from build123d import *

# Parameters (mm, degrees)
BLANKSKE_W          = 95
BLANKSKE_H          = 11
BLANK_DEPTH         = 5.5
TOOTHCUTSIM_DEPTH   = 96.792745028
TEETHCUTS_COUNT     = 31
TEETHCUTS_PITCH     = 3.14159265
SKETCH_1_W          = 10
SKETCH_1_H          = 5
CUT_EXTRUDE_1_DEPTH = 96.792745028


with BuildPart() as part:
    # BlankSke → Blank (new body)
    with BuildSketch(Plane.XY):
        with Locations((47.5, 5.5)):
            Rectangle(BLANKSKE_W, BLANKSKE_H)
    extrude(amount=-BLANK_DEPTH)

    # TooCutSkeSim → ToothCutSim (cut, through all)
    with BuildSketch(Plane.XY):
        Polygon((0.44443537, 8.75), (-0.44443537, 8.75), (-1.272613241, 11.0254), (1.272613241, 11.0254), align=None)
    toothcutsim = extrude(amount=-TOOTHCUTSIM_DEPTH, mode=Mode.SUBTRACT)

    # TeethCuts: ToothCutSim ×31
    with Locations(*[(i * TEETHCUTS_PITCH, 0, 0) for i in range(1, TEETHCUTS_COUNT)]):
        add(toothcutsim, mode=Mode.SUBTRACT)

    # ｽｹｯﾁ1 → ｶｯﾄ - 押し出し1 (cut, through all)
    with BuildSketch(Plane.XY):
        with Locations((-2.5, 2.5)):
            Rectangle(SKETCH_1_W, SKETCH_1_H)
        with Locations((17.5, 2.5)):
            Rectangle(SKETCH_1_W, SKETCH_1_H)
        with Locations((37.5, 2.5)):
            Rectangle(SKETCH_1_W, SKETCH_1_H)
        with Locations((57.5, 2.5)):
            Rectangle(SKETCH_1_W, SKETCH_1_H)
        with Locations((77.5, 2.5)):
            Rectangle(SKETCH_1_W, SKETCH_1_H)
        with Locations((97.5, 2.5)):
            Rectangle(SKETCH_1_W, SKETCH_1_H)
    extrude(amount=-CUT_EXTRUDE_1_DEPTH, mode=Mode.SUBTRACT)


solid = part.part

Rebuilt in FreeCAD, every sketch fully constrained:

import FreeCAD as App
import Part
import Sketcher
Q = App.Units.Quantity


def add_polygon(sketch, points):
    """Adds a closed chain of lines whose ends are joined by coincident constraints."""
    first, n = sketch.GeometryCount, len(points)
    for a, b in zip(points, points[1:] + points[:1]):
        sketch.addGeometry(Part.LineSegment(App.Vector(*a, 0), App.Vector(*b, 0)), False)
    for i in range(n):
        sketch.addConstraint(Sketcher.Constraint("Coincident", first + i, 2, first + (i + 1) % n, 1))

doc = App.newDocument("Part")
body = doc.addObject("PartDesign::Body", "Body")

sketch1 = body.newObject("Sketcher::SketchObject", "Sketch")
sketch1.AttachmentSupport = (doc.getObject("XY_Plane"), [""])
sketch1.MapMode = "FlatFace"
add_polygon(sketch1, [(0, 11), (0, 0), (95, 0), (95, 11)])
sketch1.addConstraint([
    Sketcher.Constraint("Vertical", 0),
    Sketcher.Constraint("Horizontal", 1),
    Sketcher.Constraint("Vertical", 2),
    Sketcher.Constraint("Horizontal", 3),
    Sketcher.Constraint("Coincident", 0, 2, -1, 1),
    Sketcher.Constraint("DistanceX", 1, 1, 1, 2, 95.0),
    Sketcher.Constraint("DistanceY", 0, 2, 0, 1, 11.0),
])
pad1 = body.newObject("PartDesign::Pad", "Pad")
pad1.Profile = sketch1
pad1.Length = 5.5
pad1.Reversed = True

sketch2 = body.newObject("Sketcher::SketchObject", "Sketch001")
sketch2.AttachmentSupport = (doc.getObject("XY_Plane"), [""])
sketch2.MapMode = "FlatFace"
add_polygon(sketch2, [(-0.4, 8.8), (0.4, 8.8), (1.3, 11), (-1.3, 11)])
sketch2.addConstraint([
    Sketcher.Constraint("Horizontal", 0),
    Sketcher.Constraint("Horizontal", 2),
    Sketcher.Constraint("Equal", 1, 3),
    Sketcher.Constraint("Angle", 1, Q("70 deg")),
    Sketcher.Constraint("DistanceY", -1, 1, 0, 2, 8.75),
    Sketcher.Constraint("DistanceX", 0, 1, 0, 2, 0.888871),
    Sketcher.Constraint("DistanceY", -1, 1, 1, 2, 11.0254),
    Sketcher.Constraint("DistanceX", -1, 1, 0, 2, 0.444435),
])
pocket1 = body.newObject("PartDesign::Pocket", "Pocket")
pocket1.Profile = sketch2
pocket1.Type = "ThroughAll"
doc.recompute()

linearpattern = body.newObject("PartDesign::LinearPattern", "LinearPattern")
linearpattern.Originals = [pocket1]
linearpattern.Direction = (doc.getObject("X_Axis"), [""])
linearpattern.Mode = "offset"
linearpattern.Offset = 3.141593
linearpattern.Occurrences = 31
body.Tip = linearpattern

sketch3 = body.newObject("Sketcher::SketchObject", "Sketch002")
sketch3.AttachmentSupport = (doc.getObject("XY_Plane"), [""])
sketch3.MapMode = "FlatFace"
add_polygon(sketch3, [(-8, 5), (-8, 0), (2, 0), (2, 5)])
add_polygon(sketch3, [(12, 5), (12, 0), (22, 0), (22, 5)])
add_polygon(sketch3, [(32, 5), (32, 0), (42, 0), (42, 5)])
add_polygon(sketch3, [(52, 5), (52, 0), (62, 0), (62, 5)])
add_polygon(sketch3, [(72, 5), (72, 0), (82, 0), (82, 5)])
add_polygon(sketch3, [(92, 5), (92, 0), (102, 0), (102, 5)])
sketch3.addConstraint([
    Sketcher.Constraint("Vertical", 0),
    Sketcher.Constraint("Horizontal", 1),
    Sketcher.Constraint("Vertical", 2),
    Sketcher.Constraint("Horizontal", 3),
    Sketcher.Constraint("Vertical", 4),
    Sketcher.Constraint("Horizontal", 5),
    Sketcher.Constraint("Vertical", 6),
    Sketcher.Constraint("Horizontal", 7),
    Sketcher.Constraint("Vertical", 8),
    Sketcher.Constraint("Horizontal", 9),
    Sketcher.Constraint("Vertical", 10),
    Sketcher.Constraint("Horizontal", 11),
    Sketcher.Constraint("Vertical", 12),
    Sketcher.Constraint("Horizontal", 13),
    Sketcher.Constraint("Vertical", 14),
    Sketcher.Constraint("Horizontal", 15),
    Sketcher.Constraint("Vertical", 16),
    Sketcher.Constraint("Horizontal", 17),
    Sketcher.Constraint("Vertical", 18),
    Sketcher.Constraint("Horizontal", 19),
    Sketcher.Constraint("Vertical", 20),
    Sketcher.Constraint("Horizontal", 21),
    Sketcher.Constraint("Vertical", 22),
    Sketcher.Constraint("Horizontal", 23),
    Sketcher.Constraint("PointOnObject", 0, 2, -1),
    Sketcher.Constraint("PointOnObject", 4, 2, -1),
    Sketcher.Constraint("PointOnObject", 8, 2, -1),
    Sketcher.Constraint("PointOnObject", 12, 2, -1),
    Sketcher.Constraint("PointOnObject", 16, 2, -1),
    Sketcher.Constraint("PointOnObject", 20, 2, -1),
    Sketcher.Constraint("Horizontal", 3, 2, 6, 2),
    Sketcher.Constraint("Horizontal", 7, 2, 10, 2),
    Sketcher.Constraint("Horizontal", 11, 2, 14, 2),
    Sketcher.Constraint("Horizontal", 15, 2, 18, 2),
    Sketcher.Constraint("Horizontal", 19, 2, 22, 2),
    Sketcher.Constraint("Equal", 3, 5),
    Sketcher.Constraint("Equal", 7, 9),
    Sketcher.Constraint("Equal", 11, 13),
    Sketcher.Constraint("Equal", 15, 17),
    Sketcher.Constraint("Equal", 19, 21),
    Sketcher.Constraint("DistanceX", 1, 1, 1, 2, 10.0),
    Sketcher.Constraint("DistanceY", 0, 2, 0, 1, 5.0),
    Sketcher.Constraint("DistanceX", 1, 2, 4, 2, 10.0),
    Sketcher.Constraint("DistanceX", 5, 2, 8, 2, 10.0),
    Sketcher.Constraint("DistanceX", 9, 2, 12, 2, 10.0),
    Sketcher.Constraint("DistanceX", 13, 2, 16, 2, 10.0),
    Sketcher.Constraint("DistanceX", 17, 2, 20, 2, 10.0),
    Sketcher.Constraint("DistanceX", 0, 2, -1, 1, 7.5),
])
pocket2 = body.newObject("PartDesign::Pocket", "Pocket001")
pocket2.Profile = sketch3
pocket2.Type = "ThroughAll"

doc.recompute()
